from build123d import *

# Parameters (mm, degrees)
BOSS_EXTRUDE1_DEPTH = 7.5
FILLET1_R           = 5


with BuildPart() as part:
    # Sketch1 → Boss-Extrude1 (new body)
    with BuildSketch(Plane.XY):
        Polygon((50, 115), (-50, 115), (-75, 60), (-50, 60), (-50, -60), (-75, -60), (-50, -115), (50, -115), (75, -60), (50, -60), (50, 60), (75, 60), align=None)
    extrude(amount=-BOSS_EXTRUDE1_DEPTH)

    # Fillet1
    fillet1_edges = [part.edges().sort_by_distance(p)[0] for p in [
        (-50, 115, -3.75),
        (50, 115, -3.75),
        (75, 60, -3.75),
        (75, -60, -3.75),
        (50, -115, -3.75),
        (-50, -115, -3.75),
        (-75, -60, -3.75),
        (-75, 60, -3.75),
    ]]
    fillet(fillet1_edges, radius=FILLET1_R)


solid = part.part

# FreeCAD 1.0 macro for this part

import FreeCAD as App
import Part
import Sketcher
from FreeCAD import Vector
Q = App.Units.Quantity


def edges_at(feature, points):
    """Names of the edges that pass closest to the given points."""
    edges = feature.Shape.Edges
    near = lambda p: min(range(len(edges)), key=lambda i: edges[i].distToShape(Part.Vertex(*p))[0])
    return sorted({f"Edge{near(p) + 1}" for p in points})

doc = App.newDocument("Part")
body = doc.addObject("PartDesign::Body", "Body")

# Sketch on XY plane
sketch1 = body.newObject("Sketcher::SketchObject", "Sketch")
sketch1.AttachmentSupport = (doc.getObject("XY_Plane"), [""])
sketch1.MapMode = "FlatFace"
sketch1.addGeometry([
    Part.LineSegment(Vector(50, 115, 0), Vector(-50, 115, 0)),  # 0
    Part.LineSegment(Vector(-50, 115, 0), Vector(-75, 60, 0)),  # 1
    Part.LineSegment(Vector(-75, 60, 0), Vector(-50, 60, 0)),  # 2
    Part.LineSegment(Vector(-50, 60, 0), Vector(-50, -60, 0)),  # 3
    Part.LineSegment(Vector(-50, -60, 0), Vector(-75, -60, 0)),  # 4
    Part.LineSegment(Vector(-75, -60, 0), Vector(-50, -115, 0)),  # 5
    Part.LineSegment(Vector(-50, -115, 0), Vector(50, -115, 0)),  # 6
    Part.LineSegment(Vector(50, -115, 0), Vector(75, -60, 0)),  # 7
    Part.LineSegment(Vector(75, -60, 0), Vector(50, -60, 0)),  # 8
    Part.LineSegment(Vector(50, -60, 0), Vector(50, 60, 0)),  # 9
    Part.LineSegment(Vector(50, 60, 0), Vector(75, 60, 0)),  # 10
    Part.LineSegment(Vector(75, 60, 0), Vector(50, 115, 0)),  # 11
], False)
sketch1.addConstraint([
    Sketcher.Constraint("Coincident", 0, 2, 1, 1),
    Sketcher.Constraint("Coincident", 1, 2, 2, 1),
    Sketcher.Constraint("Coincident", 2, 2, 3, 1),
    Sketcher.Constraint("Coincident", 3, 2, 4, 1),
    Sketcher.Constraint("Coincident", 4, 2, 5, 1),
    Sketcher.Constraint("Coincident", 5, 2, 6, 1),
    Sketcher.Constraint("Coincident", 6, 2, 7, 1),
    Sketcher.Constraint("Coincident", 7, 2, 8, 1),
    Sketcher.Constraint("Coincident", 8, 2, 9, 1),
    Sketcher.Constraint("Coincident", 9, 2, 10, 1),
    Sketcher.Constraint("Coincident", 10, 2, 11, 1),
    Sketcher.Constraint("Coincident", 11, 2, 0, 1),
    Sketcher.Constraint("Horizontal", 0),
    Sketcher.Constraint("Horizontal", 2),
    Sketcher.Constraint("Vertical", 3),
    Sketcher.Constraint("Horizontal", 4),
    Sketcher.Constraint("Horizontal", 6),
    Sketcher.Constraint("Horizontal", 8),
    Sketcher.Constraint("Vertical", 9),
    Sketcher.Constraint("Horizontal", 10),
    Sketcher.Constraint("Symmetric", 0, 2, 6, 2, -1, 1),
    Sketcher.Constraint("Symmetric", 1, 2, 7, 2, -1, 1),
    Sketcher.Constraint("Symmetric", 3, 2, 9, 2, -1, 1),
    Sketcher.Constraint("Symmetric", 4, 2, 7, 2, -2),
    Sketcher.Constraint("Parallel", 5, 11),
    Sketcher.Constraint("Vertical", 0, 2, 2, 2),
    Sketcher.Constraint("Vertical", 3, 2, 5, 2),
    Sketcher.Constraint("Vertical", 7, 2, 10, 2),
    Sketcher.Constraint("DistanceX", 0, 2, 0, 1, Q("100 mm")),
    Sketcher.Constraint("DistanceX", 2, 1, 2, 2, Q("25 mm")),
    Sketcher.Constraint("DistanceY", 3, 2, 3, 1, Q("120 mm")),
    Sketcher.Constraint("DistanceY", -1, 1, 0, 2, Q("115 mm")),
])
pad1 = body.newObject("PartDesign::Pad", "Pad")
pad1.Profile = sketch1
pad1.Length = 7.5
pad1.Reversed = True
doc.recompute()

fillet = body.newObject("PartDesign::Fillet", "Fillet")
fillet.Base = (pad1, edges_at(pad1, [
    (-50, 115, -3.75),
    (50, 115, -3.75),
    (75, 60, -3.75),
    (75, -60, -3.75),
    (50, -115, -3.75),
    (-50, -115, -3.75),
    (-75, -60, -3.75),
    (-75, 60, -3.75),
]))
fillet.Radius = 5

doc.recompute()
